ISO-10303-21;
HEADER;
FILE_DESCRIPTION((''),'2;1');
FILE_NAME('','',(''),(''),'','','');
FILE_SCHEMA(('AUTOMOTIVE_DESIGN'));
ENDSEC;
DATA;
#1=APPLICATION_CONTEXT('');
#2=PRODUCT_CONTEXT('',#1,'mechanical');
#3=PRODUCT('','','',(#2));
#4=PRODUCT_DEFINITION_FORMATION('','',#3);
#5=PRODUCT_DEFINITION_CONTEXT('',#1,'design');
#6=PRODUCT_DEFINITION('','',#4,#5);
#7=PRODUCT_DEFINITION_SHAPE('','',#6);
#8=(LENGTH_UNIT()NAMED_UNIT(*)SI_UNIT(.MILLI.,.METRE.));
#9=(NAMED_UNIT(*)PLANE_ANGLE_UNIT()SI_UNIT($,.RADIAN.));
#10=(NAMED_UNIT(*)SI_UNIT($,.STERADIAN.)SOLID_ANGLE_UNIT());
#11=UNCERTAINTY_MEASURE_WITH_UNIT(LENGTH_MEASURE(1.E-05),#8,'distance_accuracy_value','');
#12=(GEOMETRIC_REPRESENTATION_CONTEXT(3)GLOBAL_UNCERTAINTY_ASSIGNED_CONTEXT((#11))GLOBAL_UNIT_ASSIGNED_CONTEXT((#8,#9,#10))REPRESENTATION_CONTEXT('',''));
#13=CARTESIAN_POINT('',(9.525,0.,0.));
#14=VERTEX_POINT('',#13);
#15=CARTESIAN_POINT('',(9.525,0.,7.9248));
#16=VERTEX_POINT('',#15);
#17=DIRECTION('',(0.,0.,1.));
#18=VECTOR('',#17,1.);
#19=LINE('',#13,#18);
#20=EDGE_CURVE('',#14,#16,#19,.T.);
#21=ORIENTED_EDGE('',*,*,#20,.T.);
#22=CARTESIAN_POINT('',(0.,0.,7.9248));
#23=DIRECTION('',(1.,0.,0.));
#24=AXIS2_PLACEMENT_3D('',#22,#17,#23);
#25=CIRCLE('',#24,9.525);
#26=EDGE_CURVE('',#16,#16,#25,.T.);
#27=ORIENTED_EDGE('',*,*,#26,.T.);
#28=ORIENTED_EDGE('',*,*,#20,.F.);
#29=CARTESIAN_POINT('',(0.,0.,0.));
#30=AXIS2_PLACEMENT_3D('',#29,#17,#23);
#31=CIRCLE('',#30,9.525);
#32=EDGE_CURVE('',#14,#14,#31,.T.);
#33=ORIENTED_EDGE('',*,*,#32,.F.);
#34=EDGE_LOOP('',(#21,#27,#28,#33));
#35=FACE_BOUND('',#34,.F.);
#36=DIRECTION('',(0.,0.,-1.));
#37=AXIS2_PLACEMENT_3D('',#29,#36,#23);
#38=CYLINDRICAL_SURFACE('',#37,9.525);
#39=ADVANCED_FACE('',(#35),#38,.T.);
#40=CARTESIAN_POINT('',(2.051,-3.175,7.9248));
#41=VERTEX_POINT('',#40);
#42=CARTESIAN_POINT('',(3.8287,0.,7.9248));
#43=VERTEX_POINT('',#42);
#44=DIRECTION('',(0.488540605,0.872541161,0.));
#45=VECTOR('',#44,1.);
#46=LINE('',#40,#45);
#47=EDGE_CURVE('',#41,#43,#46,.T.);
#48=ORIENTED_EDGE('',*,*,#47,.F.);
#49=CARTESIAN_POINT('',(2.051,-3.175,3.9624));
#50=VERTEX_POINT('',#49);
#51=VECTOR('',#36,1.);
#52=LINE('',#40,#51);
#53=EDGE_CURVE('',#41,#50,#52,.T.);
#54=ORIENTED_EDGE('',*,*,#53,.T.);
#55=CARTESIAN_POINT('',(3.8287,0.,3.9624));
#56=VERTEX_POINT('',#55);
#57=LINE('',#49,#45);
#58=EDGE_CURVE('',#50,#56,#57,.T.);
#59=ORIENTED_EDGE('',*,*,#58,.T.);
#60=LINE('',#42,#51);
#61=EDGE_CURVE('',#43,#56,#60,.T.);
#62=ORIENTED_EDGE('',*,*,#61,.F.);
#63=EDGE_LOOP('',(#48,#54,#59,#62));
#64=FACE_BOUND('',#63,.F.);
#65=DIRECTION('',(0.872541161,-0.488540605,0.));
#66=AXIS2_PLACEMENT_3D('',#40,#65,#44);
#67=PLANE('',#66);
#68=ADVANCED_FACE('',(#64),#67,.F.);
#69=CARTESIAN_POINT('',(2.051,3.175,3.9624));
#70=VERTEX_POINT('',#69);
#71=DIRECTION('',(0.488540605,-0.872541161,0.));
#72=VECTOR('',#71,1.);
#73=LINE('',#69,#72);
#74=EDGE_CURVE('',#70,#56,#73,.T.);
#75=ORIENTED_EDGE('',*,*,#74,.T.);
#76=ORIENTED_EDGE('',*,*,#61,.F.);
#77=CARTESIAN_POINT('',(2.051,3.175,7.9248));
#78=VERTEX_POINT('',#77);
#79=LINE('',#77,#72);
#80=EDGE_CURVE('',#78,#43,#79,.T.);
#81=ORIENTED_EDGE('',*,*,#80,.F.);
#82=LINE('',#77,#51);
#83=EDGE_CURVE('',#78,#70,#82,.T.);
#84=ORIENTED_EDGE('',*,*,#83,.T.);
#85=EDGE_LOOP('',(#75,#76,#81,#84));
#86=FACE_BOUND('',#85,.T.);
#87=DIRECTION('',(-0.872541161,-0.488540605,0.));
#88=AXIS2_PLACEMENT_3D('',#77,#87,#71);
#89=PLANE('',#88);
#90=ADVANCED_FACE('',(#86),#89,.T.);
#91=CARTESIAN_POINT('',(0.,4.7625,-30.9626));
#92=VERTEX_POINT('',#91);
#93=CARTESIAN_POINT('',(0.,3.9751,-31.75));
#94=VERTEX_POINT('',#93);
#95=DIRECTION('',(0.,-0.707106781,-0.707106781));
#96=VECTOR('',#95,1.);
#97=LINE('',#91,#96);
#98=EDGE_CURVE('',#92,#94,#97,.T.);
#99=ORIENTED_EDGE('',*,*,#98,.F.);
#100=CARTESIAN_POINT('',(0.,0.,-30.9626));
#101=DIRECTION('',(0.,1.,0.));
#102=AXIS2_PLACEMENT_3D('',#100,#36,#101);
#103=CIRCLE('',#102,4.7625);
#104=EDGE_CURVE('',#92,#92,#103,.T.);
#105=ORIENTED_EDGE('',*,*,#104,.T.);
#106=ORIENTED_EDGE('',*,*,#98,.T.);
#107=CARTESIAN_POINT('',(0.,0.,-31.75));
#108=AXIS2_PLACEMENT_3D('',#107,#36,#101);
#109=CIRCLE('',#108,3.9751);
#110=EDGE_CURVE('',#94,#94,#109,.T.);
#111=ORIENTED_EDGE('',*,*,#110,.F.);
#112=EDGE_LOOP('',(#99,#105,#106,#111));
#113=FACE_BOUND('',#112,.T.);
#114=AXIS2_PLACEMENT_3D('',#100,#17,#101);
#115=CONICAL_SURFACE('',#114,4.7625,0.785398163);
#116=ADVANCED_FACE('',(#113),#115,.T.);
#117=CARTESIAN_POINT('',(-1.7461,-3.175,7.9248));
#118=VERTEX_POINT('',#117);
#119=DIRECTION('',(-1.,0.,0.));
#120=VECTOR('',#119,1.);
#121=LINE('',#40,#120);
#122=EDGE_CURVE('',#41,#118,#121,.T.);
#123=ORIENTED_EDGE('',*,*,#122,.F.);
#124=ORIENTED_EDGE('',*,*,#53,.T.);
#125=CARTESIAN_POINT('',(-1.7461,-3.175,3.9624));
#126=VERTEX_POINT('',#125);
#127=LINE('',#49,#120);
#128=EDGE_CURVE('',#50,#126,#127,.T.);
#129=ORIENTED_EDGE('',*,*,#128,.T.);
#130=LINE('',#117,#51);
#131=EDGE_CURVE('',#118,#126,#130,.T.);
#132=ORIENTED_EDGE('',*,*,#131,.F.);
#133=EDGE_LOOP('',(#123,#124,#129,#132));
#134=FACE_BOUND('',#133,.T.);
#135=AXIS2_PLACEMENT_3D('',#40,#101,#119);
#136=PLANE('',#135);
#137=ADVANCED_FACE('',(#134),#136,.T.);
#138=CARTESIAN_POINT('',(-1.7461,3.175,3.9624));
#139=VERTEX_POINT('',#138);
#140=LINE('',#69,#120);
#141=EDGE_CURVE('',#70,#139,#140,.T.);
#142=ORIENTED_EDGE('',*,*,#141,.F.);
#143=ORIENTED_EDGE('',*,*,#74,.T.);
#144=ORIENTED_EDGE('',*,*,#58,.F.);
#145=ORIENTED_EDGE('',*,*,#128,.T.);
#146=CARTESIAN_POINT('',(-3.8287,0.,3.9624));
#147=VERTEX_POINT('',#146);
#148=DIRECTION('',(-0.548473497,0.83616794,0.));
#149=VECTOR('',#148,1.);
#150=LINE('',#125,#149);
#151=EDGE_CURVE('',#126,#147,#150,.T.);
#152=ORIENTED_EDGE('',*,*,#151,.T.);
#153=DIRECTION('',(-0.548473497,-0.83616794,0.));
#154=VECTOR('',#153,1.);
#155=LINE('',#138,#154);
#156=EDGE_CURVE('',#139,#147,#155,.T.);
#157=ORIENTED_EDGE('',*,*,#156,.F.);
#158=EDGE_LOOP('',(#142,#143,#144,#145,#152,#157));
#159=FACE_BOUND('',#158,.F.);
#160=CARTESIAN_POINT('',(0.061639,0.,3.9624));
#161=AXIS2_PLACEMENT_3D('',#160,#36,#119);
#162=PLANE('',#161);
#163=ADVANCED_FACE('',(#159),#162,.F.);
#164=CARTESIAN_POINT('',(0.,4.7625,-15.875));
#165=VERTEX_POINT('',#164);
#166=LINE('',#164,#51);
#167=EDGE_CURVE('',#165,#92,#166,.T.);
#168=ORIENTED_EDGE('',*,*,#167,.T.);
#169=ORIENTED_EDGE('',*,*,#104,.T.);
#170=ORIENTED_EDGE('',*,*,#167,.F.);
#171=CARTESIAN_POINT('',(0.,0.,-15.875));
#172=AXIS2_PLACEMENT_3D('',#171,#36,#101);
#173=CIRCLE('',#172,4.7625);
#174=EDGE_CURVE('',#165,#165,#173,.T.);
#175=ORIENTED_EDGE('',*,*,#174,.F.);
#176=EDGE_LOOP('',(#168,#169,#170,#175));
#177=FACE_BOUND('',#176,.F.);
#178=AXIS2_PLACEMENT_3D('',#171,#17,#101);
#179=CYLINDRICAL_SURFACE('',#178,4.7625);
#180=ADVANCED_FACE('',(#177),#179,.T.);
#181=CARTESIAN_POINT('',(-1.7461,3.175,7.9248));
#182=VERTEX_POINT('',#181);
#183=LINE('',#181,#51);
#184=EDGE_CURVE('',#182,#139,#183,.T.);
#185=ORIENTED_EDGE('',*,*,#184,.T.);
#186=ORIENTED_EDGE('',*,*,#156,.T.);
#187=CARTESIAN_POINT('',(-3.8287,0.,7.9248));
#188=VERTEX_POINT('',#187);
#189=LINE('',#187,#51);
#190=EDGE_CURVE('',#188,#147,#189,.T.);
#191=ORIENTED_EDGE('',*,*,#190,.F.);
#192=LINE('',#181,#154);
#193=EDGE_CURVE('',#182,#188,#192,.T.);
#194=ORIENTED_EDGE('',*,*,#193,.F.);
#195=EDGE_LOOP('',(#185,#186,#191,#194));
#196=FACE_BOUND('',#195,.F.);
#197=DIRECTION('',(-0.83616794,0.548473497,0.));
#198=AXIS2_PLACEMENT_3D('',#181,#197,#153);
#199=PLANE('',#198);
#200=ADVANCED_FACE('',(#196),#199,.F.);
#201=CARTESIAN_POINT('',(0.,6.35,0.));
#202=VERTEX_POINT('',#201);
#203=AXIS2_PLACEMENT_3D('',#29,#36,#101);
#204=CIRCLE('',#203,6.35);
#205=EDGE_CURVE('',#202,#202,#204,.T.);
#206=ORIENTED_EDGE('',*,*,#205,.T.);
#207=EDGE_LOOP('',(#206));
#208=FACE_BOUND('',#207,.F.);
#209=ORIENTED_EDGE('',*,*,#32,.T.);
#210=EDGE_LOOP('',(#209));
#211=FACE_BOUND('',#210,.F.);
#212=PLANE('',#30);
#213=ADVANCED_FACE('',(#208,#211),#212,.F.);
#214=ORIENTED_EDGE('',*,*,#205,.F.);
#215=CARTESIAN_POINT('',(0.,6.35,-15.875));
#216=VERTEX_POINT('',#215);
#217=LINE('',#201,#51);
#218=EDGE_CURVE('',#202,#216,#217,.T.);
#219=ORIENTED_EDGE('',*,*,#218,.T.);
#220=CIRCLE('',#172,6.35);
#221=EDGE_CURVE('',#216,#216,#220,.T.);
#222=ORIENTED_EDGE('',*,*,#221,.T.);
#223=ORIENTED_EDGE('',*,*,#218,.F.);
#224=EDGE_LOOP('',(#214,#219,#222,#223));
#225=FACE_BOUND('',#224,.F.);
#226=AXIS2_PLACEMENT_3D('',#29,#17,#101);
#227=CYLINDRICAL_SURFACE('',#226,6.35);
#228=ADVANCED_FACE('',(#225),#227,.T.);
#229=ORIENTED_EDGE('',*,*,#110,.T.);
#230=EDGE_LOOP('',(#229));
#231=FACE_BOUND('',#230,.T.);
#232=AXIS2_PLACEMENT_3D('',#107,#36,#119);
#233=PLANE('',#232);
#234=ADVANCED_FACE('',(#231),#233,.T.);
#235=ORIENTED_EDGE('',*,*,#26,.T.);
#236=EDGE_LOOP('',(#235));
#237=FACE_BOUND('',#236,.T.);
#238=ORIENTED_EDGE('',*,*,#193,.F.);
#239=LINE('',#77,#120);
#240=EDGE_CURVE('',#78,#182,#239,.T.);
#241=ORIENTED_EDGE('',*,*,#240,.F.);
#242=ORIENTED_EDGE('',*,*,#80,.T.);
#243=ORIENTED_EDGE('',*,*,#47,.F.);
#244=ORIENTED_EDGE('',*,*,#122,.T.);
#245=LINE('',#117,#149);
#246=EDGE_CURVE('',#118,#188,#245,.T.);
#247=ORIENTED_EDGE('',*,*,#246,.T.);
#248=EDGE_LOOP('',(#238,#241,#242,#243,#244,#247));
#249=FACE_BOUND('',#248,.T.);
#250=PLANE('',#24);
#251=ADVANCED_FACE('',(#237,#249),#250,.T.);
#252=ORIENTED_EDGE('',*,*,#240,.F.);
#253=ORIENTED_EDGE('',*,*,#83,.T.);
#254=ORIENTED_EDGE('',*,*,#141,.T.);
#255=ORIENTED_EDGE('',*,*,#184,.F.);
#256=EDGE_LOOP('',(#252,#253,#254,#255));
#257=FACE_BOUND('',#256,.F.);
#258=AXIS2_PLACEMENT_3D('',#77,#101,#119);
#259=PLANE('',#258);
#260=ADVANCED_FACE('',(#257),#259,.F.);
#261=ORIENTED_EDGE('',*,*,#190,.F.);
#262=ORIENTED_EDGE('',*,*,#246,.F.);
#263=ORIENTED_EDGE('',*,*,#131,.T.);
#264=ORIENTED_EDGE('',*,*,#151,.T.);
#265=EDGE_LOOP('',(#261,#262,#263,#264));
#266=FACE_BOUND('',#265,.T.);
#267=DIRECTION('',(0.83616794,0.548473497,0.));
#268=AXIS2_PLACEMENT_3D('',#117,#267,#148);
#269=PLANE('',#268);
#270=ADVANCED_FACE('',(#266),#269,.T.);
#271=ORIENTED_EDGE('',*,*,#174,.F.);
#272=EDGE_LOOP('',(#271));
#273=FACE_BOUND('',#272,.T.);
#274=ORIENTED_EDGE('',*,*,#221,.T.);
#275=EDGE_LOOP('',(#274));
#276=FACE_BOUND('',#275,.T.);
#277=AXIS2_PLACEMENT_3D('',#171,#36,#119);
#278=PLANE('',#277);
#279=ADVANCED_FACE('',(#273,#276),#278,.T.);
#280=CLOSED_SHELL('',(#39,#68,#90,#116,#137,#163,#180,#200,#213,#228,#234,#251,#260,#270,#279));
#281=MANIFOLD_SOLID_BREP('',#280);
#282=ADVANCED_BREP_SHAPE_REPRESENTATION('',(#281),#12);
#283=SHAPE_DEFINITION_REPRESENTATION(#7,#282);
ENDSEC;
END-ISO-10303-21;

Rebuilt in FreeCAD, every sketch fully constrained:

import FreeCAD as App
import Part
import Sketcher

V = App.Vector
Q = App.Units.Quantity


def edges_at(feature, points):
    """Names of the edges that pass closest to the given points."""
    edges = feature.Shape.Edges
    near = lambda p: min(range(len(edges)), key=lambda i: edges[i].distToShape(Part.Vertex(*p))[0])
    return sorted({f"Edge{near(p) + 1}" for p in points})

doc = App.newDocument("Part")
body = doc.addObject("PartDesign::Body", "Body")

sketch1 = doc.addObject("Sketcher::SketchObject", "Sketch")
body.addObject(sketch1)
sketch1.AttachmentSupport = (doc.XY_Plane, [""])
sketch1.MapMode = "FlatFace"
sketch1.addGeometry(Part.Circle(V(0, 0, 0), V(0, 0, 1), 10), False)
sketch1.addConstraint([
    Sketcher.Constraint("Coincident", 0, 3, -1, 1),
    Sketcher.Constraint("Diameter", 0, Q("0.75 in")),
])
pad1 = doc.addObject("PartDesign::Pad", "Pad")
body.addObject(pad1)
pad1.Profile = sketch1
pad1.Length = Q("0.312 in")

sketch2 = doc.addObject("Sketcher::SketchObject", "Sketch001")
body.addObject(sketch2)
sketch2.AttachmentSupport = (doc.XY_Plane, [""])
sketch2.MapMode = "FlatFace"
sketch2.addGeometry(Part.Circle(V(0, 0, 0), V(0, 0, 1), 6), False)
sketch2.addConstraint([
    Sketcher.Constraint("Coincident", 0, 3, -1, 1),
    Sketcher.Constraint("Diameter", 0, Q("0.5 in")),
])
pad2 = doc.addObject("PartDesign::Pad", "Pad001")
body.addObject(pad2)
pad2.Profile = sketch2
pad2.Length = Q("0.625 in")
pad2.Reversed = True

sketch3 = doc.addObject("Sketcher::SketchObject", "Sketch002")
body.addObject(sketch3)
sketch3.AttachmentSupport = (doc.XY_Plane, [""])
sketch3.MapMode = "FlatFace"
sketch3.AttachmentOffset = App.Placement(V(0, 0, -0.625 * 25.4), App.Rotation())
sketch3.addGeometry(Part.Circle(V(0, 0, 0), V(0, 0, 1), 4.8), False)
sketch3.addConstraint([
    Sketcher.Constraint("Coincident", 0, 3, -1, 1),
    Sketcher.Constraint("Diameter", 0, Q("0.375 in")),
])
pad3 = doc.addObject("PartDesign::Pad", "Pad002")
body.addObject(pad3)
pad3.Profile = sketch3
pad3.Length = Q("0.625 in")
pad3.Reversed = True

sketch4 = doc.addObject("Sketcher::SketchObject", "Sketch003")
body.addObject(sketch4)
sketch4.AttachmentSupport = (doc.XY_Plane, [""])
sketch4.MapMode = "FlatFace"
sketch4.AttachmentOffset = App.Placement(V(0, 0, 0.312 * 25.4), App.Rotation())
sketch4.addGeometry([
    Part.LineSegment(V(-3.8, 0, 0), V(-1.7, -3.2, 0)),
    Part.LineSegment(V(-1.7, -3.2, 0), V(2.1, -3.2, 0)),
    Part.LineSegment(V(2.1, -3.2, 0), V(3.8, 0, 0)),
    Part.LineSegment(V(3.8, 0, 0), V(2.1, 3.2, 0)),
    Part.LineSegment(V(2.1, 3.2, 0), V(-1.7, 3.2, 0)),
    Part.LineSegment(V(-1.7, 3.2, 0), V(-3.8, 0, 0)),
], False)
sketch4.addConstraint([
    Sketcher.Constraint("Coincident", 0, 2, 1, 1),
    Sketcher.Constraint("Coincident", 1, 2, 2, 1),
    Sketcher.Constraint("Coincident", 2, 2, 3, 1),
    Sketcher.Constraint("Coincident", 3, 2, 4, 1),
    Sketcher.Constraint("Coincident", 4, 2, 5, 1),
    Sketcher.Constraint("Coincident", 5, 2, 0, 1),
    Sketcher.Constraint("Horizontal", 1),
    Sketcher.Constraint("Horizontal", 4),
    Sketcher.Constraint("Symmetric", 2, 2, 5, 2, -1, 1),
    Sketcher.Constraint("Symmetric", 1, 2, 3, 2, -1),
    Sketcher.Constraint("PointOnObject", 2, 2, -1),
    Sketcher.Constraint("Vertical", 0, 2, 4, 2),
    Sketcher.Constraint("DistanceX", 1, 2, 2, 2, Q("0.07 in")),
    Sketcher.Constraint("DistanceY", 1, 2, 3, 2, Q("0.25 in")),
    Sketcher.Constraint("DistanceX", 1, 1, 1, 2, Q("0.1495 in")),
    Sketcher.Constraint("DistanceX", 5, 2, 0, 2, Q("0.082 in")),
])
pocket1 = doc.addObject("PartDesign::Pocket", "Pocket")
body.addObject(pocket1)
pocket1.Profile = sketch4
pocket1.Length = Q("0.156 in")
doc.recompute()

chamfer = doc.addObject("PartDesign::Chamfer", "Chamfer")
body.addObject(chamfer)
chamfer.Base = (pocket1, edges_at(pocket1, [(0, -4.763, -31.75)]))
chamfer.Size = Q("0.031 in")

doc.recompute()
